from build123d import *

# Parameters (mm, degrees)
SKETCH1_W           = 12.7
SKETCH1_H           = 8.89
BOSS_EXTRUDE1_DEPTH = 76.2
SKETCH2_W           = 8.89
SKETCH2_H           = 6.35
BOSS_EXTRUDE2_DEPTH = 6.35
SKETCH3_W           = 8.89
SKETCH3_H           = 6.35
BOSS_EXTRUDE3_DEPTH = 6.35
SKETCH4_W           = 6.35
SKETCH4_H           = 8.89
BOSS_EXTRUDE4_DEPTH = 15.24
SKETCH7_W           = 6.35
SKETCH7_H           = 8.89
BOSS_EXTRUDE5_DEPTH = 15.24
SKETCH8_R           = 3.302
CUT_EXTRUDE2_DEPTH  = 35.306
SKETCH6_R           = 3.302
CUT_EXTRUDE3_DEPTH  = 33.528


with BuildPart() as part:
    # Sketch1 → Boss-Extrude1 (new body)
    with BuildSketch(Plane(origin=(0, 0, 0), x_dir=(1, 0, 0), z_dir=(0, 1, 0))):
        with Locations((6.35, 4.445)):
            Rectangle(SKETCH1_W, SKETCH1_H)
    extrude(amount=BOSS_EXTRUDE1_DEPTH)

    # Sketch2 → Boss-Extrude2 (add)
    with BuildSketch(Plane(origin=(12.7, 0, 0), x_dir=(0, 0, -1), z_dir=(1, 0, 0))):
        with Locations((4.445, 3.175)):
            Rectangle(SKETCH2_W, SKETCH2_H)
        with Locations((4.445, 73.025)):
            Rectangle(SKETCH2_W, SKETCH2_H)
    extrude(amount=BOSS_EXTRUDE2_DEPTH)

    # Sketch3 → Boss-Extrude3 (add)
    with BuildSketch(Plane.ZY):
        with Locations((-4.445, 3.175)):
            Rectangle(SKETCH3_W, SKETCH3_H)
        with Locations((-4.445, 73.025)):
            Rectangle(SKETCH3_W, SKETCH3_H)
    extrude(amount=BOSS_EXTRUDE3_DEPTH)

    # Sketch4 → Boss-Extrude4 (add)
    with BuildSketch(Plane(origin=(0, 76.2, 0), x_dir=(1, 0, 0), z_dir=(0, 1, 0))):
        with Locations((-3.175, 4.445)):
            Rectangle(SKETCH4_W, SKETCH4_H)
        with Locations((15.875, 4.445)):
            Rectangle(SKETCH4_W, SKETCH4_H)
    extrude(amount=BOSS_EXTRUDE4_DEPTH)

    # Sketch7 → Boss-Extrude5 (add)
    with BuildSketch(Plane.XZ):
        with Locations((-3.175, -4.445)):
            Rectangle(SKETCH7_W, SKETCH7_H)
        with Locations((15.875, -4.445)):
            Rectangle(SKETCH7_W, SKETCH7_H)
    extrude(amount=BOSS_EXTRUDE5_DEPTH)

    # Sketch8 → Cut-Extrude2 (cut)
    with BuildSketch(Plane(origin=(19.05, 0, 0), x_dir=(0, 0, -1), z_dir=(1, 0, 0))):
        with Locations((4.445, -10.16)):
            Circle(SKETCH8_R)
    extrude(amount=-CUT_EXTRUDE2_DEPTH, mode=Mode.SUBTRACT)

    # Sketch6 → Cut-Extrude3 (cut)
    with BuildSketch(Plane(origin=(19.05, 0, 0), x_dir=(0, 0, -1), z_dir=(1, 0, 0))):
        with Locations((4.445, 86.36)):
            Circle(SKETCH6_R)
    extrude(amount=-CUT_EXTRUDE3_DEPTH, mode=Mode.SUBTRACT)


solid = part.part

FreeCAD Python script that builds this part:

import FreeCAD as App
import Part
import Sketcher
from FreeCAD import Vector
Q = App.Units.Quantity


def add_polygon(sketch, points):
    """Adds a closed chain of lines whose ends are joined by coincident constraints."""
    first, n = sketch.GeometryCount, len(points)
    for a, b in zip(points, points[1:] + points[:1]):
        sketch.addGeometry(Part.LineSegment(App.Vector(*a, 0), App.Vector(*b, 0)), False)
    for i in range(n):
        sketch.addConstraint(Sketcher.Constraint("Coincident", first + i, 2, first + (i + 1) % n, 1))

doc = App.newDocument("Part")
body = doc.addObject("PartDesign::Body", "Body")

sketch1 = body.newObject("Sketcher::SketchObject", "Sketch")
sketch1.AttachmentSupport = (doc.getObject("XZ_Plane"), [""])
sketch1.MapMode = "FlatFace"
add_polygon(sketch1, [(0, -9), (0, 0), (13, 0), (13, -9)])
sketch1.addConstraint([
    Sketcher.Constraint("Vertical", 0),
    Sketcher.Constraint("Horizontal", 1),
    Sketcher.Constraint("Vertical", 2),
    Sketcher.Constraint("Horizontal", 3),
    Sketcher.Constraint("Coincident", 0, 2, -1, 1),
    Sketcher.Constraint("DistanceX", 1, 1, 1, 2, Q("0.5 in")),
    Sketcher.Constraint("DistanceY", 0, 1, 0, 2, Q("0.35 in")),
])
pad1 = body.newObject("PartDesign::Pad", "Pad")
pad1.Profile = sketch1
pad1.Length = Q("3 in")
pad1.Reversed = True

sketch2 = body.newObject("Sketcher::SketchObject", "Sketch001")
sketch2.AttachmentSupport = (doc.getObject("YZ_Plane"), [""])
sketch2.MapMode = "FlatFace"
sketch2.AttachmentOffset = App.Placement(Vector(0, 0, 0.5 * 25.4), App.Rotation())
add_polygon(sketch2, [(6, 0), (0, 0), (0, -9), (6, -9)])
add_polygon(sketch2, [(76, 0), (70, 0), (70, -9), (76, -9)])
sketch2.addConstraint([
    Sketcher.Constraint("Horizontal", 0),
    Sketcher.Constraint("Vertical", 1),
    Sketcher.Constraint("Horizontal", 2),
    Sketcher.Constraint("Vertical", 3),
    Sketcher.Constraint("Horizontal", 4),
    Sketcher.Constraint("Vertical", 5),
    Sketcher.Constraint("Horizontal", 6),
    Sketcher.Constraint("Vertical", 7),
    Sketcher.Constraint("Coincident", 0, 2, -1, 1),
    Sketcher.Constraint("PointOnObject", 4, 2, -1),
    Sketcher.Constraint("Horizontal", 2, 2, 5, 2),
    Sketcher.Constraint("Equal", 2, 4),
    Sketcher.Constraint("DistanceX", -1, 1, 6, 2, Q("3 in")),
    Sketcher.Constraint("DistanceX", 0, 2, 0, 1, Q("0.25 in")),
    Sketcher.Constraint("DistanceY", 1, 2, 1, 1, Q("0.35 in")),
])
pad2 = body.newObject("PartDesign::Pad", "Pad001")
pad2.Profile = sketch2
pad2.Length = Q("0.25 in")

sketch3 = body.newObject("Sketcher::SketchObject", "Sketch002")
sketch3.AttachmentSupport = (doc.getObject("YZ_Plane"), [""])
sketch3.MapMode = "FlatFace"
add_polygon(sketch3, [(6, -9), (0, -9), (0, 0), (6, 0)])
add_polygon(sketch3, [(76, -9), (70, -9), (70, 0), (76, 0)])
sketch3.addConstraint([
    Sketcher.Constraint("Horizontal", 0),
    Sketcher.Constraint("Vertical", 1),
    Sketcher.Constraint("Horizontal", 2),
    Sketcher.Constraint("Vertical", 3),
    Sketcher.Constraint("Horizontal", 4),
    Sketcher.Constraint("Vertical", 5),
    Sketcher.Constraint("Horizontal", 6),
    Sketcher.Constraint("Vertical", 7),
    Sketcher.Constraint("Coincident", 1, 2, -1, 1),
    Sketcher.Constraint("PointOnObject", 5, 2, -1),
    Sketcher.Constraint("Horizontal", 3, 2, 4, 2),
    Sketcher.Constraint("Equal", 2, 4),
    Sketcher.Constraint("DistanceX", -1, 1, 6, 2, Q("3 in")),
    Sketcher.Constraint("DistanceX", 0, 2, 0, 1, Q("0.25 in")),
    Sketcher.Constraint("DistanceY", 1, 1, 1, 2, Q("0.35 in")),
])
pad3 = body.newObject("PartDesign::Pad", "Pad002")
pad3.Profile = sketch3
pad3.Length = Q("0.25 in")
pad3.Reversed = True

sketch4 = body.newObject("Sketcher::SketchObject", "Sketch003")
sketch4.AttachmentSupport = (doc.getObject("XZ_Plane"), [""])
sketch4.MapMode = "FlatFace"
sketch4.AttachmentOffset = App.Placement(Vector(0, 0, -3 * 25.4), App.Rotation())
add_polygon(sketch4, [(-6, -9), (-6, 0), (0, 0), (0, -9)])
add_polygon(sketch4, [(13, -9), (13, 0), (19, 0), (19, -9)])
sketch4.addConstraint([
    Sketcher.Constraint("Vertical", 0),
    Sketcher.Constraint("Horizontal", 1),
    Sketcher.Constraint("Vertical", 2),
    Sketcher.Constraint("Horizontal", 3),
    Sketcher.Constraint("Vertical", 4),
    Sketcher.Constraint("Horizontal", 5),
    Sketcher.Constraint("Vertical", 6),
    Sketcher.Constraint("Horizontal", 7),
    Sketcher.Constraint("Coincident", 1, 2, -1, 1),
    Sketcher.Constraint("PointOnObject", 4, 2, -1),
    Sketcher.Constraint("Horizontal", 3, 2, 6, 2),
    Sketcher.Constraint("Equal", 3, 5),
    Sketcher.Constraint("DistanceX", 0, 2, 5, 2, Q("1 in")),
    Sketcher.Constraint("DistanceX", 1, 1, 1, 2, Q("0.25 in")),
    Sketcher.Constraint("DistanceY", 0, 1, 0, 2, Q("0.35 in")),
])
pad4 = body.newObject("PartDesign::Pad", "Pad003")
pad4.Profile = sketch4
pad4.Length = Q("0.6 in")
pad4.Reversed = True

sketch5 = body.newObject("Sketcher::SketchObject", "Sketch004")
sketch5.AttachmentSupport = (doc.getObject("XZ_Plane"), [""])
sketch5.MapMode = "FlatFace"
add_polygon(sketch5, [(-6, 0), (-6, -9), (0, -9), (0, 0)])
add_polygon(sketch5, [(13, 0), (13, -9), (19, -9), (19, 0)])
sketch5.addConstraint([
    Sketcher.Constraint("Vertical", 0),
    Sketcher.Constraint("Horizontal", 1),
    Sketcher.Constraint("Vertical", 2),
    Sketcher.Constraint("Horizontal", 3),
    Sketcher.Constraint("Vertical", 4),
    Sketcher.Constraint("Horizontal", 5),
    Sketcher.Constraint("Vertical", 6),
    Sketcher.Constraint("Horizontal", 7),
    Sketcher.Constraint("Coincident", 2, 2, -1, 1),
    Sketcher.Constraint("PointOnObject", 6, 2, -1),
    Sketcher.Constraint("Horizontal", 1, 2, 4, 2),
    Sketcher.Constraint("Equal", 3, 5),
    Sketcher.Constraint("DistanceX", 0, 2, 5, 2, Q("1 in")),
    Sketcher.Constraint("DistanceX", 1, 1, 1, 2, Q("0.25 in")),
    Sketcher.Constraint("DistanceY", 0, 2, 0, 1, Q("0.35 in")),
])
pad5 = body.newObject("PartDesign::Pad", "Pad004")
pad5.Profile = sketch5
pad5.Length = Q("0.6 in")

sketch6 = body.newObject("Sketcher::SketchObject", "Sketch005")
sketch6.AttachmentSupport = (doc.getObject("YZ_Plane"), [""])
sketch6.MapMode = "FlatFace"
sketch6.AttachmentOffset = App.Placement(Vector(0, 0, 0.75 * 25.4), App.Rotation())
sketch6.addGeometry(Part.Circle(Vector(-10.2, -4.4, 0), Vector(0, 0, 1), 3.3), False)
sketch6.addConstraint([
    Sketcher.Constraint("Diameter", 0, Q("0.26 in")),
    Sketcher.Constraint("DistanceX", 0, 3, -1, 1, Q("0.4 in")),
    Sketcher.Constraint("DistanceY", 0, 3, -1, 1, Q("0.175 in")),
])
pocket1 = body.newObject("PartDesign::Pocket", "Pocket")
pocket1.Profile = sketch6
pocket1.Length = Q("1.39 in")

sketch7 = body.newObject("Sketcher::SketchObject", "Sketch006")
sketch7.AttachmentSupport = (doc.getObject("YZ_Plane"), [""])
sketch7.MapMode = "FlatFace"
sketch7.AttachmentOffset = App.Placement(Vector(0, 0, 0.75 * 25.4), App.Rotation())
sketch7.addGeometry(Part.Circle(Vector(86.4, -4.4, 0), Vector(0, 0, 1), 3.3), False)
sketch7.addConstraint([
    Sketcher.Constraint("Diameter", 0, Q("0.26 in")),
    Sketcher.Constraint("DistanceX", -1, 1, 0, 3, Q("3.4 in")),
    Sketcher.Constraint("DistanceY", 0, 3, -1, 1, Q("0.175 in")),
])
pocket2 = body.newObject("PartDesign::Pocket", "Pocket001")
pocket2.Profile = sketch7
pocket2.Length = Q("1.32 in")

doc.recompute()
